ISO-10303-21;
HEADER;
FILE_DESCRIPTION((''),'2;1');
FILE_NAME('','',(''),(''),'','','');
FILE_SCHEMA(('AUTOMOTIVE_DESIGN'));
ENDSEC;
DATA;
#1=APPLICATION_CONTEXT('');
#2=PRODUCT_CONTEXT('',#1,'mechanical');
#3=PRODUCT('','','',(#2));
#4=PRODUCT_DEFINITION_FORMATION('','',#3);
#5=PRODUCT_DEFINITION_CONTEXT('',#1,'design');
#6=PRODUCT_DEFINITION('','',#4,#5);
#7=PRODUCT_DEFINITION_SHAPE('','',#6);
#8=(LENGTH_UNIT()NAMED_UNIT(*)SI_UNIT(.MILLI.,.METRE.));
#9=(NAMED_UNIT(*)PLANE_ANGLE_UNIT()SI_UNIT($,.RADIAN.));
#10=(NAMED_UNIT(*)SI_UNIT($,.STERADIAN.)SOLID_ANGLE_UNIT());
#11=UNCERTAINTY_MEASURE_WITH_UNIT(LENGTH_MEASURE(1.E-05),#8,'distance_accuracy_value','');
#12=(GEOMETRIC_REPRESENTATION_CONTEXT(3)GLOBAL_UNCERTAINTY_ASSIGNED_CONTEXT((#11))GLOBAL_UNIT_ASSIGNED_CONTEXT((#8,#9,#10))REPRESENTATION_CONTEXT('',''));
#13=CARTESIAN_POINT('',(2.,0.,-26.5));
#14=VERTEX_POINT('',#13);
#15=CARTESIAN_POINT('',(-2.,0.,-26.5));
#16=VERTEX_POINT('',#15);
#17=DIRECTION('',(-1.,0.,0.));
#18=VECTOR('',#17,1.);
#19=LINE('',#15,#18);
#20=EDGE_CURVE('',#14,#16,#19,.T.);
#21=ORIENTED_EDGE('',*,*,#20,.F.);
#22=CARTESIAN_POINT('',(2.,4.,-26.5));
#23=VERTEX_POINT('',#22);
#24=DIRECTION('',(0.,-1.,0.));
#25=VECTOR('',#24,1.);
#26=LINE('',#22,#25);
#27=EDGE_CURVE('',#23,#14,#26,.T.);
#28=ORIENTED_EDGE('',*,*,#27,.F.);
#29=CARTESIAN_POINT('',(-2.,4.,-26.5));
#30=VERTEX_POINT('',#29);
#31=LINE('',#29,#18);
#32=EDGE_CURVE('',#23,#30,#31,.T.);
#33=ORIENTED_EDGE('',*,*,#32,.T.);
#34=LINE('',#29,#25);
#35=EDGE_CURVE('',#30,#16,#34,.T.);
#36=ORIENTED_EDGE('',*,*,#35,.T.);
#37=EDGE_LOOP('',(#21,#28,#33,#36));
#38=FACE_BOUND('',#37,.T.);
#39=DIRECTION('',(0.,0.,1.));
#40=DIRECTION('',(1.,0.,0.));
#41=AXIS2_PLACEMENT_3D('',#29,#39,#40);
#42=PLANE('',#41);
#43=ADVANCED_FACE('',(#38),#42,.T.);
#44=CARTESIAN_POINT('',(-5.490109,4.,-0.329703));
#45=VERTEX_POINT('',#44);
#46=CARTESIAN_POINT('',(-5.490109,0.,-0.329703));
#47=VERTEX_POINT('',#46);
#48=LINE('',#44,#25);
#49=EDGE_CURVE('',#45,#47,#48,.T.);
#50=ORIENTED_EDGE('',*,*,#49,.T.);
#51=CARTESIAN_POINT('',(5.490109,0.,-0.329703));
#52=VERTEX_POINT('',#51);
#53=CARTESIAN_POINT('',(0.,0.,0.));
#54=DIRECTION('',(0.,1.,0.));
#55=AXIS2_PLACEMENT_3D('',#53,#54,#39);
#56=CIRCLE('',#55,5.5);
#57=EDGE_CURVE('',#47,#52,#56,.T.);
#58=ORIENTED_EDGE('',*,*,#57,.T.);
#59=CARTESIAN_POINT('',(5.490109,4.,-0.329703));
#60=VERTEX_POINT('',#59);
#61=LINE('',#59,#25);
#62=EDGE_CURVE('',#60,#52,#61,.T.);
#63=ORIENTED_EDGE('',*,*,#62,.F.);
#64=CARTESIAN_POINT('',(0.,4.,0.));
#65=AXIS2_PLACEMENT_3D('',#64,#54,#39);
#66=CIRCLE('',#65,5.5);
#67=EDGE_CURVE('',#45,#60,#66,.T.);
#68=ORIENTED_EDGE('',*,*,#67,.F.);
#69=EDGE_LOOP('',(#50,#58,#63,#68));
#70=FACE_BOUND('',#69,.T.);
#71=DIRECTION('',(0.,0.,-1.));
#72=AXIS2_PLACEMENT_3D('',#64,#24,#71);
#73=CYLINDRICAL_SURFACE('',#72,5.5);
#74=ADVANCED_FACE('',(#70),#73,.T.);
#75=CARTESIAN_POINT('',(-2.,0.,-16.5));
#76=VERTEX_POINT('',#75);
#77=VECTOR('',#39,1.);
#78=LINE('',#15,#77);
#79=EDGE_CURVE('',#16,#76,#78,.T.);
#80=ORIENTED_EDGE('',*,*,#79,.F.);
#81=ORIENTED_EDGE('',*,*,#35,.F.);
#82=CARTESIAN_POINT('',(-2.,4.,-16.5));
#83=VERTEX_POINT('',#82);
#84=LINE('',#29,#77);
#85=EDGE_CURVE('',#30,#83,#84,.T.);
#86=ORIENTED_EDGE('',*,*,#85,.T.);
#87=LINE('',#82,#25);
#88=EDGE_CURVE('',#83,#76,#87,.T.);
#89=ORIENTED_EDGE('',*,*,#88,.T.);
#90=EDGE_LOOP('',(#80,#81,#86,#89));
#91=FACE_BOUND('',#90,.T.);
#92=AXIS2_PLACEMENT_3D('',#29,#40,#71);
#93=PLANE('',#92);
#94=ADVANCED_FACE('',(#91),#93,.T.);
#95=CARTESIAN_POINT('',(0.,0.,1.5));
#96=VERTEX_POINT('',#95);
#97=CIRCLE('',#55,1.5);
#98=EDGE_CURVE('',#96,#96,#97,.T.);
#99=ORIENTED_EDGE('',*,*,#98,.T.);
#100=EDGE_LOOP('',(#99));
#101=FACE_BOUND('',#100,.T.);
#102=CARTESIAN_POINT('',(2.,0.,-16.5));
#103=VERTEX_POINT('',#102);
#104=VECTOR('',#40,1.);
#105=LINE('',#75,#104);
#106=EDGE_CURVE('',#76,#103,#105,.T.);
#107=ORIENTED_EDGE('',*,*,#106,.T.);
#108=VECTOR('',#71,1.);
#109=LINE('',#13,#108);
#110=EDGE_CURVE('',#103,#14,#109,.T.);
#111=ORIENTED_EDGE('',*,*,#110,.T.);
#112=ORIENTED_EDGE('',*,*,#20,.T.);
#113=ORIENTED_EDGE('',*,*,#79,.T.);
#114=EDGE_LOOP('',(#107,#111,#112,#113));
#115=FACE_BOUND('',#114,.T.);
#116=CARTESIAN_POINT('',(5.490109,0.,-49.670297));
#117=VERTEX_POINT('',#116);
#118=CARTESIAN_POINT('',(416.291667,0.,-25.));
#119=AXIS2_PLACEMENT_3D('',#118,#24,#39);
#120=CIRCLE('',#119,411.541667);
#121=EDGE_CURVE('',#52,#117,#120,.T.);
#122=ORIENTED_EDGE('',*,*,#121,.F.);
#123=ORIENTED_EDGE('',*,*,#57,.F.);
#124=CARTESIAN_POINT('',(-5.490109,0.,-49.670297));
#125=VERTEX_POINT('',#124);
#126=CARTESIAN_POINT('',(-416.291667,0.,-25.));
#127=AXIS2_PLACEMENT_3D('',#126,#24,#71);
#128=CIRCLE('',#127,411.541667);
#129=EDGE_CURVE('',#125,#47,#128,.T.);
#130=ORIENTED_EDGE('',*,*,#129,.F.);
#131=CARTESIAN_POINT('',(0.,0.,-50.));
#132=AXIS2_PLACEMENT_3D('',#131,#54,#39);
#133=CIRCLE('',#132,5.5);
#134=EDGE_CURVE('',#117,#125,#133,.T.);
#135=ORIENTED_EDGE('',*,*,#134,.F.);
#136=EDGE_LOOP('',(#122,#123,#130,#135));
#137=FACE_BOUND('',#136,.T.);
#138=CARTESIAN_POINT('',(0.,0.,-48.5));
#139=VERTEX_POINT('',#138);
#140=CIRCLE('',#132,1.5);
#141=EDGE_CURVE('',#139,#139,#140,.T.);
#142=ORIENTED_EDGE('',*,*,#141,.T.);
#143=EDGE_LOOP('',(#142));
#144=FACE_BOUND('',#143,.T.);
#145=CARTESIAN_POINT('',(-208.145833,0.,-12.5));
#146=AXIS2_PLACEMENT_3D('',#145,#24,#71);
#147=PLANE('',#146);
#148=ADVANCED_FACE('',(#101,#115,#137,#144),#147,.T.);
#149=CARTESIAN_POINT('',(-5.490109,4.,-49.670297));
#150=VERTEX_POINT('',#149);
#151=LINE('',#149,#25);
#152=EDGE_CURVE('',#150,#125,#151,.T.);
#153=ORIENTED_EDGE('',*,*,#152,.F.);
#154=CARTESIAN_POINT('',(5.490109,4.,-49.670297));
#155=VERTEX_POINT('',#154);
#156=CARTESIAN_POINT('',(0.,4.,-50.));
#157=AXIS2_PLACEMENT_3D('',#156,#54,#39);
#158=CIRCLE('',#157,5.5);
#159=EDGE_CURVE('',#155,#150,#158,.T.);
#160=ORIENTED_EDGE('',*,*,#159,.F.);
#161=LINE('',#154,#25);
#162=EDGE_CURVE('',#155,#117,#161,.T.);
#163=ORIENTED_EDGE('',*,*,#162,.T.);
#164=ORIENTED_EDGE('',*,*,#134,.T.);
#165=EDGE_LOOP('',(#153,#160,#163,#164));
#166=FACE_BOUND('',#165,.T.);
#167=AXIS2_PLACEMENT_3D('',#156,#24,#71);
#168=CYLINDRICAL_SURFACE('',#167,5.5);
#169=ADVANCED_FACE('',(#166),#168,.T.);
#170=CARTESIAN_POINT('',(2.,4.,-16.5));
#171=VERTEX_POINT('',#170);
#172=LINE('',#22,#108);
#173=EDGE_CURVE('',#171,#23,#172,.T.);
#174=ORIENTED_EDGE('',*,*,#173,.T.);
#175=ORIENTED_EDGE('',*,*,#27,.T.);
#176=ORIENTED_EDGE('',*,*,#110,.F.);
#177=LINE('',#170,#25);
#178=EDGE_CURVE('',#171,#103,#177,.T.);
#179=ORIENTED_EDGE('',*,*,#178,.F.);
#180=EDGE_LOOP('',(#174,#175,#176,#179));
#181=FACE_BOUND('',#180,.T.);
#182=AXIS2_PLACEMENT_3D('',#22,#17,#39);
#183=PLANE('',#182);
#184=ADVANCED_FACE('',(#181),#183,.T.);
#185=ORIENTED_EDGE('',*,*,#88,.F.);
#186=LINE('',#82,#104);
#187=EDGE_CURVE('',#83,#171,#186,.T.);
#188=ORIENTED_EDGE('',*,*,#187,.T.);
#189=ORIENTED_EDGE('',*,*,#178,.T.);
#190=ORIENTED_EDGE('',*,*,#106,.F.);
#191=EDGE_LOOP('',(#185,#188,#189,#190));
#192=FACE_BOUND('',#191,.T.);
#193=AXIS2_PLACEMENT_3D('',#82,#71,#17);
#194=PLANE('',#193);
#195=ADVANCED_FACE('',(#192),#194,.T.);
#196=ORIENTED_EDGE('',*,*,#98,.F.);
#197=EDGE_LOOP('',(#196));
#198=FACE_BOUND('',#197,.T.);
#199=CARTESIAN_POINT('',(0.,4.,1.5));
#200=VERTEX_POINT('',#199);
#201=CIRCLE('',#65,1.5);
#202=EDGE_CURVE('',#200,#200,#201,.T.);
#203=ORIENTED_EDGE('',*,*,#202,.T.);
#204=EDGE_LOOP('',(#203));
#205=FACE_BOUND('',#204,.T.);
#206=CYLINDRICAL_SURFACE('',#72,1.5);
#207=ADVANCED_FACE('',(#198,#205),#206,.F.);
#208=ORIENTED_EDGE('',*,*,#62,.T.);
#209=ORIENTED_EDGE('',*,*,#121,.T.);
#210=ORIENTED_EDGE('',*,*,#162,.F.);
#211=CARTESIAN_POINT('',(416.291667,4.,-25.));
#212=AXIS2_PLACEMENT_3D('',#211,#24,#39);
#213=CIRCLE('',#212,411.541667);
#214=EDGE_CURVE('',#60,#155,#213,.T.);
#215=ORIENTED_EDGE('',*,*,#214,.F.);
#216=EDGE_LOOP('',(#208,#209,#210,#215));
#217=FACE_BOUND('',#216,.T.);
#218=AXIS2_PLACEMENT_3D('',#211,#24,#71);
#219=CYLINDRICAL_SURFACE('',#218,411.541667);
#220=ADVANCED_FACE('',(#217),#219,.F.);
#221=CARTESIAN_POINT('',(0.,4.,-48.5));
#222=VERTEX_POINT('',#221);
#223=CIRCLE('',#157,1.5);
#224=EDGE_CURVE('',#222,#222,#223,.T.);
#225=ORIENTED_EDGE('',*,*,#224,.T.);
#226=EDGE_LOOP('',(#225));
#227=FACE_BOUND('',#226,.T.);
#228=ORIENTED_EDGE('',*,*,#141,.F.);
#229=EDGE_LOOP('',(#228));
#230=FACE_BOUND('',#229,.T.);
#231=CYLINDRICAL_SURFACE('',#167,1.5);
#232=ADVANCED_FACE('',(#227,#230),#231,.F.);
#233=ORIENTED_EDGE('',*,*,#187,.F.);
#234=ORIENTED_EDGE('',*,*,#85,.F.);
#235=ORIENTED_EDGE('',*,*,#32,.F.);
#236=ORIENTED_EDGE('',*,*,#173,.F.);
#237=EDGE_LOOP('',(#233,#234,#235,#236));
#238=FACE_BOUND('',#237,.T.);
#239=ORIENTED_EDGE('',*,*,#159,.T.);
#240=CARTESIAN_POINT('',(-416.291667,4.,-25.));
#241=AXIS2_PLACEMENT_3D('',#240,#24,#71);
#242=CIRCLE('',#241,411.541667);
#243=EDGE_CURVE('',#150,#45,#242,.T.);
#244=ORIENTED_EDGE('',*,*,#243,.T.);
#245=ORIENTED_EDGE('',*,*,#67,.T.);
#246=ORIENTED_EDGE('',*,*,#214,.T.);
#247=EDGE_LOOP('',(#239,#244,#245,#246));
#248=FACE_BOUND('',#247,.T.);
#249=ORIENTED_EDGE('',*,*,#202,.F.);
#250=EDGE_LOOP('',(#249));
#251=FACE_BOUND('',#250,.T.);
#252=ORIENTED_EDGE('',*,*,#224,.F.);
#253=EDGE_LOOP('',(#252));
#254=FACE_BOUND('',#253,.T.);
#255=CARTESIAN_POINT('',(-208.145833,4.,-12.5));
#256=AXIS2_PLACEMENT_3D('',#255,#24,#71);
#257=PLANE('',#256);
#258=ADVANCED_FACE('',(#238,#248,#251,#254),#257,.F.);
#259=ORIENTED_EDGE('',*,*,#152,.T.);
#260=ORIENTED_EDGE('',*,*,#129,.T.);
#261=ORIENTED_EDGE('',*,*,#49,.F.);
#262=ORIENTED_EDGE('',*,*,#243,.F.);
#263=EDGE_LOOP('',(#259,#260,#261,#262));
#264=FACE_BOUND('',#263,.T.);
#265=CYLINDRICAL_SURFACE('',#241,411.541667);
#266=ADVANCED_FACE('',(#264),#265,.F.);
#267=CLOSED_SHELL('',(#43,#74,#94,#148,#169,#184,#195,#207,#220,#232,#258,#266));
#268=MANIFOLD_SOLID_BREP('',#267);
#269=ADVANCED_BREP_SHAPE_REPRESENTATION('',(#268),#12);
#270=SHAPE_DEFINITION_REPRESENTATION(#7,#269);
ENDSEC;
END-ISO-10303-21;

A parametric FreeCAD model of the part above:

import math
import FreeCAD as App
import Part
import Sketcher
from FreeCAD import Vector


def add_polygon(sketch, points):
    """Adds a closed chain of lines whose ends are joined by coincident constraints."""
    first, n = sketch.GeometryCount, len(points)
    for a, b in zip(points, points[1:] + points[:1]):
        sketch.addGeometry(Part.LineSegment(App.Vector(*a, 0), App.Vector(*b, 0)), False)
    for i in range(n):
        sketch.addConstraint(Sketcher.Constraint("Coincident", first + i, 2, first + (i + 1) % n, 1))

doc = App.newDocument("Part")
body = doc.addObject("PartDesign::Body", "Body")

# Sketch on XZ plane
sketch1 = body.newObject("Sketcher::SketchObject", "Sketch")
sketch1.AttachmentSupport = (doc.getObject("XZ_Plane"), [""])
sketch1.MapMode = "FlatFace"
sketch1.addGeometry(Part.ArcOfCircle(Part.Circle(Vector(0, 0, 0), Vector(0, 0, 1), 5.5), math.radians(-3), math.radians(183)), False)  # 0
sketch1.addGeometry(Part.ArcOfCircle(Part.Circle(Vector(416.3, -25, 0), Vector(0, 0, 1), 411.5), math.radians(176.56), math.radians(183.44)), False)  # 1
sketch1.addGeometry(Part.ArcOfCircle(Part.Circle(Vector(0, -50, 0), Vector(0, 0, 1), 5.5), math.radians(177), math.radians(363)), False)  # 2
sketch1.addGeometry(Part.ArcOfCircle(Part.Circle(Vector(-416.3, -25, 0), Vector(0, 0, 1), 411.5), math.radians(-3.44), math.radians(3.44)), False)  # 3
sketch1.addGeometry(Part.Circle(Vector(0, 0, 0), Vector(0, 0, 1), 1.5), False)  # 4
add_polygon(sketch1, [(2, -16.5), (-2, -16.5), (-2, -26.5), (2, -26.5)])  # lines 5-8
sketch1.addGeometry(Part.Circle(Vector(0, -50, 0), Vector(0, 0, 1), 1.5), False)  # 9
sketch1.addConstraint(Sketcher.Constraint("Tangent", 0, 1, 1, 1))
sketch1.addConstraint(Sketcher.Constraint("Tangent", 1, 2, 2, 2))
sketch1.addConstraint(Sketcher.Constraint("Tangent", 2, 1, 3, 1))
sketch1.addConstraint(Sketcher.Constraint("Tangent", 3, 2, 0, 2))
sketch1.addConstraint(Sketcher.Constraint("Horizontal", 5))
sketch1.addConstraint(Sketcher.Constraint("Vertical", 6))
sketch1.addConstraint(Sketcher.Constraint("Horizontal", 7))
sketch1.addConstraint(Sketcher.Constraint("Vertical", 8))
sketch1.addConstraint(Sketcher.Constraint("Coincident", 0, 3, -1, 1))
sketch1.addConstraint(Sketcher.Constraint("Coincident", 4, 3, -1, 1))
sketch1.addConstraint(Sketcher.Constraint("Coincident", 9, 3, 2, 3))
sketch1.addConstraint(Sketcher.Constraint("Equal", 0, 2))
sketch1.addConstraint(Sketcher.Constraint("Equal", 1, 3))
sketch1.addConstraint(Sketcher.Constraint("Equal", 4, 9))
sketch1.addConstraint(Sketcher.Constraint("PointOnObject", 2, 3, -2))
sketch1.addConstraint(Sketcher.Constraint("Diameter", 4, 3.0))
sketch1.addConstraint(Sketcher.Constraint("Radius", 0, 5.5))
sketch1.addConstraint(Sketcher.Constraint("DistanceX", 5, 2, 5, 1, 4.0))
sketch1.addConstraint(Sketcher.Constraint("DistanceY", 6, 2, 6, 1, 10.0))
sketch1.addConstraint(Sketcher.Constraint("DistanceY", 1, 3, -1, 1, 25.0))
sketch1.addConstraint(Sketcher.Constraint("DistanceX", 5, 2, -1, 1, 2.0))
sketch1.addConstraint(Sketcher.Constraint("DistanceY", 5, 2, -1, 1, 16.5))
sketch1.addConstraint(Sketcher.Constraint("Radius", 1, 411.541667))
pad1 = body.newObject("PartDesign::Pad", "Pad")
pad1.Profile = sketch1
pad1.Length = 4
pad1.Reversed = True

doc.recompute()
